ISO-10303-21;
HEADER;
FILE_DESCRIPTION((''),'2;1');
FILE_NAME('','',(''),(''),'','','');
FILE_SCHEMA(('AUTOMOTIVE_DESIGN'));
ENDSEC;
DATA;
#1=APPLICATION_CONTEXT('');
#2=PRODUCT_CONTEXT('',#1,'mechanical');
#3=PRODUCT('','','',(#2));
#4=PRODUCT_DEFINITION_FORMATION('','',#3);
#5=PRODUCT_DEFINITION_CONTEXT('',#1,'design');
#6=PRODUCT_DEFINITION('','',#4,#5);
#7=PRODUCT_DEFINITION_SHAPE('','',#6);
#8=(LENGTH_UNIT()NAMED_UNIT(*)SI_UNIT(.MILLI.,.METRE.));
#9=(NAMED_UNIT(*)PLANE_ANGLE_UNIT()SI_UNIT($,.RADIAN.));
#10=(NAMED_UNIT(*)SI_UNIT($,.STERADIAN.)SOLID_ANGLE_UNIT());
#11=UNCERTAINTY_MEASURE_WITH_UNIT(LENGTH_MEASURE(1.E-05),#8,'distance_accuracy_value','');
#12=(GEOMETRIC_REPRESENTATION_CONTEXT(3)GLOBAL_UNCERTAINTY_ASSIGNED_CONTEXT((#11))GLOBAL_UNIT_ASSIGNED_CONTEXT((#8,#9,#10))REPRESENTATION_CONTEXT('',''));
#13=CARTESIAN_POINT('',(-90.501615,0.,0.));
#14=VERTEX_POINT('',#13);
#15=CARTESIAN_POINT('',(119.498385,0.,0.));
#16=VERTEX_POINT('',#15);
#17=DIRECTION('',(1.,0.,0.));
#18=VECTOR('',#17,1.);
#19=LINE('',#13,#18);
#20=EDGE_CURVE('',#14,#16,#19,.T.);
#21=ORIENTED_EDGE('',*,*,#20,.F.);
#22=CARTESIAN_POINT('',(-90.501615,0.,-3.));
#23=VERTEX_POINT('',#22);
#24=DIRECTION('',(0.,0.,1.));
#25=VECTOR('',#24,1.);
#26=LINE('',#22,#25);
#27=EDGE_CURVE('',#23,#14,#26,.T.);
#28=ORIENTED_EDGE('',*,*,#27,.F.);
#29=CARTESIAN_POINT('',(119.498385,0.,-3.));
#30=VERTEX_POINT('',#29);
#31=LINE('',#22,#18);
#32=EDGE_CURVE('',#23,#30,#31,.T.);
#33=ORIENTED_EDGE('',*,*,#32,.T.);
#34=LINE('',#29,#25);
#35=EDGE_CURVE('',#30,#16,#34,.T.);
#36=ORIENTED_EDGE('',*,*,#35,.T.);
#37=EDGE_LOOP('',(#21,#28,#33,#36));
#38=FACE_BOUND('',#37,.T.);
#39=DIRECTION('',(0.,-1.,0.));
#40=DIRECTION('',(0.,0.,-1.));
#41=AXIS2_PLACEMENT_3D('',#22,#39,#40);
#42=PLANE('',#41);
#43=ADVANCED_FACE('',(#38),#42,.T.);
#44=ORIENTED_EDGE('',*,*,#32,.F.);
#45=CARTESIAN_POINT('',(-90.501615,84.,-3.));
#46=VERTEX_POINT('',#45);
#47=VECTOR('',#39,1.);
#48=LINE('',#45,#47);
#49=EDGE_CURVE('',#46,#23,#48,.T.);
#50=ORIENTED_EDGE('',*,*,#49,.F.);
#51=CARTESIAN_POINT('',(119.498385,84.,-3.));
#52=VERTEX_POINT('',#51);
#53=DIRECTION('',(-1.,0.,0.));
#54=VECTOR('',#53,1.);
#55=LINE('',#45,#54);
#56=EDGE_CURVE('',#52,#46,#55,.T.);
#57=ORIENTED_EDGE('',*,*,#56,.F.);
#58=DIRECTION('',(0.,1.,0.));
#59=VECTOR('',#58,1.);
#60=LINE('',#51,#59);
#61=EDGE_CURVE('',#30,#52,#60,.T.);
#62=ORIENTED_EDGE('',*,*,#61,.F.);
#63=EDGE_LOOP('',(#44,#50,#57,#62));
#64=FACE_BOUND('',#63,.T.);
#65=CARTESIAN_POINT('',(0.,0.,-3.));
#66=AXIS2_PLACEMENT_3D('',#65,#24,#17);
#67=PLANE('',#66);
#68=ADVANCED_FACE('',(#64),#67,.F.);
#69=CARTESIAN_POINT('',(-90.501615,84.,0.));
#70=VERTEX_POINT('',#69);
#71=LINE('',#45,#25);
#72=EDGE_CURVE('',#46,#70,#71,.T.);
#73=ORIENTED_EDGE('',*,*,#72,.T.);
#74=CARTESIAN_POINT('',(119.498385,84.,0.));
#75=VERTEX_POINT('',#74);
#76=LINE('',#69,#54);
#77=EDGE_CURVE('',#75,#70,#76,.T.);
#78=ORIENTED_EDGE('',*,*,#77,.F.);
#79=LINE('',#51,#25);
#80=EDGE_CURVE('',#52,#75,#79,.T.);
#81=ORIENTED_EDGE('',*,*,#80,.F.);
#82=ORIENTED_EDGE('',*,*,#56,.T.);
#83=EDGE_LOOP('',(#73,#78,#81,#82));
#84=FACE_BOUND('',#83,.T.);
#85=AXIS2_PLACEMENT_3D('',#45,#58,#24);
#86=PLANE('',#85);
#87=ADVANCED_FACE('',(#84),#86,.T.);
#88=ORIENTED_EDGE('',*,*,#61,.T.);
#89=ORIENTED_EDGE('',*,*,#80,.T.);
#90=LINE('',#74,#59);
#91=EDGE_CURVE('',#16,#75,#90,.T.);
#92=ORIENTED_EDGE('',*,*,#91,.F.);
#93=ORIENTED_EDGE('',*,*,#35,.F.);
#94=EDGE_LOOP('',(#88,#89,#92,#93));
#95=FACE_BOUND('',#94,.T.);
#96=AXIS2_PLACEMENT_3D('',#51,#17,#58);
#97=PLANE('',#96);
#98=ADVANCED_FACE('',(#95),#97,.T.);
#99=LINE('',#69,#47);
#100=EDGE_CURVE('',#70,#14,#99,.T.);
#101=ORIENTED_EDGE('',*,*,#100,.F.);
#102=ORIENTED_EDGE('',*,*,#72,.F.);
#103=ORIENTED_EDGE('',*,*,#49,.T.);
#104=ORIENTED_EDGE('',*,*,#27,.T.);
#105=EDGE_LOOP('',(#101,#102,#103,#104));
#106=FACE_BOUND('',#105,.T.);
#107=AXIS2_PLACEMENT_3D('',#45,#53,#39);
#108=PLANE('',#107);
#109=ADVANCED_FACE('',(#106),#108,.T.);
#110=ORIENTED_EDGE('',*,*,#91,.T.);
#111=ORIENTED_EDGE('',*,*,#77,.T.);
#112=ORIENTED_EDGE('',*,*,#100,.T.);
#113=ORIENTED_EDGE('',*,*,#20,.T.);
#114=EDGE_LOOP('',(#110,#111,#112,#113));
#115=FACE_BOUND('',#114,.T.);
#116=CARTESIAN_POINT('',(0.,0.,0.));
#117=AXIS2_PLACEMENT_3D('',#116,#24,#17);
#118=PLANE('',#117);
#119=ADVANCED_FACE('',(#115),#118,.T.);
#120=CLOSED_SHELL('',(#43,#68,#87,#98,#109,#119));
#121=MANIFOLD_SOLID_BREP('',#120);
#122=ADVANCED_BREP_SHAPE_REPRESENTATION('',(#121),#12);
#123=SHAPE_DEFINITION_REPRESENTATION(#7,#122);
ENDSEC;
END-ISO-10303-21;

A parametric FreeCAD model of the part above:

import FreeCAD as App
import Part
import Sketcher
from FreeCAD import Vector


def add_polygon(sketch, points):
    """Adds a closed chain of lines whose ends are joined by coincident constraints."""
    first, n = sketch.GeometryCount, len(points)
    for a, b in zip(points, points[1:] + points[:1]):
        sketch.addGeometry(Part.LineSegment(App.Vector(*a, 0), App.Vector(*b, 0)), False)
    for i in range(n):
        sketch.addConstraint(Sketcher.Constraint("Coincident", first + i, 2, first + (i + 1) % n, 1))

doc = App.newDocument("Part")
body = doc.addObject("PartDesign::Body", "Body")

# Sketch on XY plane
sketch1 = body.newObject("Sketcher::SketchObject", "Sketch")
sketch1.AttachmentSupport = (doc.getObject("XY_Plane"), [""])
sketch1.MapMode = "FlatFace"
add_polygon(sketch1, [(-91, 84), (-91, 0), (119, 0), (119, 84)])  # lines 0-3
sketch1.addConstraint([
    Sketcher.Constraint("Vertical", 0),
    Sketcher.Constraint("Horizontal", 1),
    Sketcher.Constraint("Vertical", 2),
    Sketcher.Constraint("Horizontal", 3),
    Sketcher.Constraint("PointOnObject", 0, 2, -1),
    Sketcher.Constraint("DistanceX", 1, 1, 1, 2, 210.0),
    Sketcher.Constraint("DistanceY", 0, 2, 0, 1, 84.0),
    Sketcher.Constraint("DistanceX", 0, 2, -1, 1, 90.501615),
])
pad1 = body.newObject("PartDesign::Pad", "Pad")
pad1.Profile = sketch1
pad1.Length = 3
pad1.Reversed = True

doc.recompute()
